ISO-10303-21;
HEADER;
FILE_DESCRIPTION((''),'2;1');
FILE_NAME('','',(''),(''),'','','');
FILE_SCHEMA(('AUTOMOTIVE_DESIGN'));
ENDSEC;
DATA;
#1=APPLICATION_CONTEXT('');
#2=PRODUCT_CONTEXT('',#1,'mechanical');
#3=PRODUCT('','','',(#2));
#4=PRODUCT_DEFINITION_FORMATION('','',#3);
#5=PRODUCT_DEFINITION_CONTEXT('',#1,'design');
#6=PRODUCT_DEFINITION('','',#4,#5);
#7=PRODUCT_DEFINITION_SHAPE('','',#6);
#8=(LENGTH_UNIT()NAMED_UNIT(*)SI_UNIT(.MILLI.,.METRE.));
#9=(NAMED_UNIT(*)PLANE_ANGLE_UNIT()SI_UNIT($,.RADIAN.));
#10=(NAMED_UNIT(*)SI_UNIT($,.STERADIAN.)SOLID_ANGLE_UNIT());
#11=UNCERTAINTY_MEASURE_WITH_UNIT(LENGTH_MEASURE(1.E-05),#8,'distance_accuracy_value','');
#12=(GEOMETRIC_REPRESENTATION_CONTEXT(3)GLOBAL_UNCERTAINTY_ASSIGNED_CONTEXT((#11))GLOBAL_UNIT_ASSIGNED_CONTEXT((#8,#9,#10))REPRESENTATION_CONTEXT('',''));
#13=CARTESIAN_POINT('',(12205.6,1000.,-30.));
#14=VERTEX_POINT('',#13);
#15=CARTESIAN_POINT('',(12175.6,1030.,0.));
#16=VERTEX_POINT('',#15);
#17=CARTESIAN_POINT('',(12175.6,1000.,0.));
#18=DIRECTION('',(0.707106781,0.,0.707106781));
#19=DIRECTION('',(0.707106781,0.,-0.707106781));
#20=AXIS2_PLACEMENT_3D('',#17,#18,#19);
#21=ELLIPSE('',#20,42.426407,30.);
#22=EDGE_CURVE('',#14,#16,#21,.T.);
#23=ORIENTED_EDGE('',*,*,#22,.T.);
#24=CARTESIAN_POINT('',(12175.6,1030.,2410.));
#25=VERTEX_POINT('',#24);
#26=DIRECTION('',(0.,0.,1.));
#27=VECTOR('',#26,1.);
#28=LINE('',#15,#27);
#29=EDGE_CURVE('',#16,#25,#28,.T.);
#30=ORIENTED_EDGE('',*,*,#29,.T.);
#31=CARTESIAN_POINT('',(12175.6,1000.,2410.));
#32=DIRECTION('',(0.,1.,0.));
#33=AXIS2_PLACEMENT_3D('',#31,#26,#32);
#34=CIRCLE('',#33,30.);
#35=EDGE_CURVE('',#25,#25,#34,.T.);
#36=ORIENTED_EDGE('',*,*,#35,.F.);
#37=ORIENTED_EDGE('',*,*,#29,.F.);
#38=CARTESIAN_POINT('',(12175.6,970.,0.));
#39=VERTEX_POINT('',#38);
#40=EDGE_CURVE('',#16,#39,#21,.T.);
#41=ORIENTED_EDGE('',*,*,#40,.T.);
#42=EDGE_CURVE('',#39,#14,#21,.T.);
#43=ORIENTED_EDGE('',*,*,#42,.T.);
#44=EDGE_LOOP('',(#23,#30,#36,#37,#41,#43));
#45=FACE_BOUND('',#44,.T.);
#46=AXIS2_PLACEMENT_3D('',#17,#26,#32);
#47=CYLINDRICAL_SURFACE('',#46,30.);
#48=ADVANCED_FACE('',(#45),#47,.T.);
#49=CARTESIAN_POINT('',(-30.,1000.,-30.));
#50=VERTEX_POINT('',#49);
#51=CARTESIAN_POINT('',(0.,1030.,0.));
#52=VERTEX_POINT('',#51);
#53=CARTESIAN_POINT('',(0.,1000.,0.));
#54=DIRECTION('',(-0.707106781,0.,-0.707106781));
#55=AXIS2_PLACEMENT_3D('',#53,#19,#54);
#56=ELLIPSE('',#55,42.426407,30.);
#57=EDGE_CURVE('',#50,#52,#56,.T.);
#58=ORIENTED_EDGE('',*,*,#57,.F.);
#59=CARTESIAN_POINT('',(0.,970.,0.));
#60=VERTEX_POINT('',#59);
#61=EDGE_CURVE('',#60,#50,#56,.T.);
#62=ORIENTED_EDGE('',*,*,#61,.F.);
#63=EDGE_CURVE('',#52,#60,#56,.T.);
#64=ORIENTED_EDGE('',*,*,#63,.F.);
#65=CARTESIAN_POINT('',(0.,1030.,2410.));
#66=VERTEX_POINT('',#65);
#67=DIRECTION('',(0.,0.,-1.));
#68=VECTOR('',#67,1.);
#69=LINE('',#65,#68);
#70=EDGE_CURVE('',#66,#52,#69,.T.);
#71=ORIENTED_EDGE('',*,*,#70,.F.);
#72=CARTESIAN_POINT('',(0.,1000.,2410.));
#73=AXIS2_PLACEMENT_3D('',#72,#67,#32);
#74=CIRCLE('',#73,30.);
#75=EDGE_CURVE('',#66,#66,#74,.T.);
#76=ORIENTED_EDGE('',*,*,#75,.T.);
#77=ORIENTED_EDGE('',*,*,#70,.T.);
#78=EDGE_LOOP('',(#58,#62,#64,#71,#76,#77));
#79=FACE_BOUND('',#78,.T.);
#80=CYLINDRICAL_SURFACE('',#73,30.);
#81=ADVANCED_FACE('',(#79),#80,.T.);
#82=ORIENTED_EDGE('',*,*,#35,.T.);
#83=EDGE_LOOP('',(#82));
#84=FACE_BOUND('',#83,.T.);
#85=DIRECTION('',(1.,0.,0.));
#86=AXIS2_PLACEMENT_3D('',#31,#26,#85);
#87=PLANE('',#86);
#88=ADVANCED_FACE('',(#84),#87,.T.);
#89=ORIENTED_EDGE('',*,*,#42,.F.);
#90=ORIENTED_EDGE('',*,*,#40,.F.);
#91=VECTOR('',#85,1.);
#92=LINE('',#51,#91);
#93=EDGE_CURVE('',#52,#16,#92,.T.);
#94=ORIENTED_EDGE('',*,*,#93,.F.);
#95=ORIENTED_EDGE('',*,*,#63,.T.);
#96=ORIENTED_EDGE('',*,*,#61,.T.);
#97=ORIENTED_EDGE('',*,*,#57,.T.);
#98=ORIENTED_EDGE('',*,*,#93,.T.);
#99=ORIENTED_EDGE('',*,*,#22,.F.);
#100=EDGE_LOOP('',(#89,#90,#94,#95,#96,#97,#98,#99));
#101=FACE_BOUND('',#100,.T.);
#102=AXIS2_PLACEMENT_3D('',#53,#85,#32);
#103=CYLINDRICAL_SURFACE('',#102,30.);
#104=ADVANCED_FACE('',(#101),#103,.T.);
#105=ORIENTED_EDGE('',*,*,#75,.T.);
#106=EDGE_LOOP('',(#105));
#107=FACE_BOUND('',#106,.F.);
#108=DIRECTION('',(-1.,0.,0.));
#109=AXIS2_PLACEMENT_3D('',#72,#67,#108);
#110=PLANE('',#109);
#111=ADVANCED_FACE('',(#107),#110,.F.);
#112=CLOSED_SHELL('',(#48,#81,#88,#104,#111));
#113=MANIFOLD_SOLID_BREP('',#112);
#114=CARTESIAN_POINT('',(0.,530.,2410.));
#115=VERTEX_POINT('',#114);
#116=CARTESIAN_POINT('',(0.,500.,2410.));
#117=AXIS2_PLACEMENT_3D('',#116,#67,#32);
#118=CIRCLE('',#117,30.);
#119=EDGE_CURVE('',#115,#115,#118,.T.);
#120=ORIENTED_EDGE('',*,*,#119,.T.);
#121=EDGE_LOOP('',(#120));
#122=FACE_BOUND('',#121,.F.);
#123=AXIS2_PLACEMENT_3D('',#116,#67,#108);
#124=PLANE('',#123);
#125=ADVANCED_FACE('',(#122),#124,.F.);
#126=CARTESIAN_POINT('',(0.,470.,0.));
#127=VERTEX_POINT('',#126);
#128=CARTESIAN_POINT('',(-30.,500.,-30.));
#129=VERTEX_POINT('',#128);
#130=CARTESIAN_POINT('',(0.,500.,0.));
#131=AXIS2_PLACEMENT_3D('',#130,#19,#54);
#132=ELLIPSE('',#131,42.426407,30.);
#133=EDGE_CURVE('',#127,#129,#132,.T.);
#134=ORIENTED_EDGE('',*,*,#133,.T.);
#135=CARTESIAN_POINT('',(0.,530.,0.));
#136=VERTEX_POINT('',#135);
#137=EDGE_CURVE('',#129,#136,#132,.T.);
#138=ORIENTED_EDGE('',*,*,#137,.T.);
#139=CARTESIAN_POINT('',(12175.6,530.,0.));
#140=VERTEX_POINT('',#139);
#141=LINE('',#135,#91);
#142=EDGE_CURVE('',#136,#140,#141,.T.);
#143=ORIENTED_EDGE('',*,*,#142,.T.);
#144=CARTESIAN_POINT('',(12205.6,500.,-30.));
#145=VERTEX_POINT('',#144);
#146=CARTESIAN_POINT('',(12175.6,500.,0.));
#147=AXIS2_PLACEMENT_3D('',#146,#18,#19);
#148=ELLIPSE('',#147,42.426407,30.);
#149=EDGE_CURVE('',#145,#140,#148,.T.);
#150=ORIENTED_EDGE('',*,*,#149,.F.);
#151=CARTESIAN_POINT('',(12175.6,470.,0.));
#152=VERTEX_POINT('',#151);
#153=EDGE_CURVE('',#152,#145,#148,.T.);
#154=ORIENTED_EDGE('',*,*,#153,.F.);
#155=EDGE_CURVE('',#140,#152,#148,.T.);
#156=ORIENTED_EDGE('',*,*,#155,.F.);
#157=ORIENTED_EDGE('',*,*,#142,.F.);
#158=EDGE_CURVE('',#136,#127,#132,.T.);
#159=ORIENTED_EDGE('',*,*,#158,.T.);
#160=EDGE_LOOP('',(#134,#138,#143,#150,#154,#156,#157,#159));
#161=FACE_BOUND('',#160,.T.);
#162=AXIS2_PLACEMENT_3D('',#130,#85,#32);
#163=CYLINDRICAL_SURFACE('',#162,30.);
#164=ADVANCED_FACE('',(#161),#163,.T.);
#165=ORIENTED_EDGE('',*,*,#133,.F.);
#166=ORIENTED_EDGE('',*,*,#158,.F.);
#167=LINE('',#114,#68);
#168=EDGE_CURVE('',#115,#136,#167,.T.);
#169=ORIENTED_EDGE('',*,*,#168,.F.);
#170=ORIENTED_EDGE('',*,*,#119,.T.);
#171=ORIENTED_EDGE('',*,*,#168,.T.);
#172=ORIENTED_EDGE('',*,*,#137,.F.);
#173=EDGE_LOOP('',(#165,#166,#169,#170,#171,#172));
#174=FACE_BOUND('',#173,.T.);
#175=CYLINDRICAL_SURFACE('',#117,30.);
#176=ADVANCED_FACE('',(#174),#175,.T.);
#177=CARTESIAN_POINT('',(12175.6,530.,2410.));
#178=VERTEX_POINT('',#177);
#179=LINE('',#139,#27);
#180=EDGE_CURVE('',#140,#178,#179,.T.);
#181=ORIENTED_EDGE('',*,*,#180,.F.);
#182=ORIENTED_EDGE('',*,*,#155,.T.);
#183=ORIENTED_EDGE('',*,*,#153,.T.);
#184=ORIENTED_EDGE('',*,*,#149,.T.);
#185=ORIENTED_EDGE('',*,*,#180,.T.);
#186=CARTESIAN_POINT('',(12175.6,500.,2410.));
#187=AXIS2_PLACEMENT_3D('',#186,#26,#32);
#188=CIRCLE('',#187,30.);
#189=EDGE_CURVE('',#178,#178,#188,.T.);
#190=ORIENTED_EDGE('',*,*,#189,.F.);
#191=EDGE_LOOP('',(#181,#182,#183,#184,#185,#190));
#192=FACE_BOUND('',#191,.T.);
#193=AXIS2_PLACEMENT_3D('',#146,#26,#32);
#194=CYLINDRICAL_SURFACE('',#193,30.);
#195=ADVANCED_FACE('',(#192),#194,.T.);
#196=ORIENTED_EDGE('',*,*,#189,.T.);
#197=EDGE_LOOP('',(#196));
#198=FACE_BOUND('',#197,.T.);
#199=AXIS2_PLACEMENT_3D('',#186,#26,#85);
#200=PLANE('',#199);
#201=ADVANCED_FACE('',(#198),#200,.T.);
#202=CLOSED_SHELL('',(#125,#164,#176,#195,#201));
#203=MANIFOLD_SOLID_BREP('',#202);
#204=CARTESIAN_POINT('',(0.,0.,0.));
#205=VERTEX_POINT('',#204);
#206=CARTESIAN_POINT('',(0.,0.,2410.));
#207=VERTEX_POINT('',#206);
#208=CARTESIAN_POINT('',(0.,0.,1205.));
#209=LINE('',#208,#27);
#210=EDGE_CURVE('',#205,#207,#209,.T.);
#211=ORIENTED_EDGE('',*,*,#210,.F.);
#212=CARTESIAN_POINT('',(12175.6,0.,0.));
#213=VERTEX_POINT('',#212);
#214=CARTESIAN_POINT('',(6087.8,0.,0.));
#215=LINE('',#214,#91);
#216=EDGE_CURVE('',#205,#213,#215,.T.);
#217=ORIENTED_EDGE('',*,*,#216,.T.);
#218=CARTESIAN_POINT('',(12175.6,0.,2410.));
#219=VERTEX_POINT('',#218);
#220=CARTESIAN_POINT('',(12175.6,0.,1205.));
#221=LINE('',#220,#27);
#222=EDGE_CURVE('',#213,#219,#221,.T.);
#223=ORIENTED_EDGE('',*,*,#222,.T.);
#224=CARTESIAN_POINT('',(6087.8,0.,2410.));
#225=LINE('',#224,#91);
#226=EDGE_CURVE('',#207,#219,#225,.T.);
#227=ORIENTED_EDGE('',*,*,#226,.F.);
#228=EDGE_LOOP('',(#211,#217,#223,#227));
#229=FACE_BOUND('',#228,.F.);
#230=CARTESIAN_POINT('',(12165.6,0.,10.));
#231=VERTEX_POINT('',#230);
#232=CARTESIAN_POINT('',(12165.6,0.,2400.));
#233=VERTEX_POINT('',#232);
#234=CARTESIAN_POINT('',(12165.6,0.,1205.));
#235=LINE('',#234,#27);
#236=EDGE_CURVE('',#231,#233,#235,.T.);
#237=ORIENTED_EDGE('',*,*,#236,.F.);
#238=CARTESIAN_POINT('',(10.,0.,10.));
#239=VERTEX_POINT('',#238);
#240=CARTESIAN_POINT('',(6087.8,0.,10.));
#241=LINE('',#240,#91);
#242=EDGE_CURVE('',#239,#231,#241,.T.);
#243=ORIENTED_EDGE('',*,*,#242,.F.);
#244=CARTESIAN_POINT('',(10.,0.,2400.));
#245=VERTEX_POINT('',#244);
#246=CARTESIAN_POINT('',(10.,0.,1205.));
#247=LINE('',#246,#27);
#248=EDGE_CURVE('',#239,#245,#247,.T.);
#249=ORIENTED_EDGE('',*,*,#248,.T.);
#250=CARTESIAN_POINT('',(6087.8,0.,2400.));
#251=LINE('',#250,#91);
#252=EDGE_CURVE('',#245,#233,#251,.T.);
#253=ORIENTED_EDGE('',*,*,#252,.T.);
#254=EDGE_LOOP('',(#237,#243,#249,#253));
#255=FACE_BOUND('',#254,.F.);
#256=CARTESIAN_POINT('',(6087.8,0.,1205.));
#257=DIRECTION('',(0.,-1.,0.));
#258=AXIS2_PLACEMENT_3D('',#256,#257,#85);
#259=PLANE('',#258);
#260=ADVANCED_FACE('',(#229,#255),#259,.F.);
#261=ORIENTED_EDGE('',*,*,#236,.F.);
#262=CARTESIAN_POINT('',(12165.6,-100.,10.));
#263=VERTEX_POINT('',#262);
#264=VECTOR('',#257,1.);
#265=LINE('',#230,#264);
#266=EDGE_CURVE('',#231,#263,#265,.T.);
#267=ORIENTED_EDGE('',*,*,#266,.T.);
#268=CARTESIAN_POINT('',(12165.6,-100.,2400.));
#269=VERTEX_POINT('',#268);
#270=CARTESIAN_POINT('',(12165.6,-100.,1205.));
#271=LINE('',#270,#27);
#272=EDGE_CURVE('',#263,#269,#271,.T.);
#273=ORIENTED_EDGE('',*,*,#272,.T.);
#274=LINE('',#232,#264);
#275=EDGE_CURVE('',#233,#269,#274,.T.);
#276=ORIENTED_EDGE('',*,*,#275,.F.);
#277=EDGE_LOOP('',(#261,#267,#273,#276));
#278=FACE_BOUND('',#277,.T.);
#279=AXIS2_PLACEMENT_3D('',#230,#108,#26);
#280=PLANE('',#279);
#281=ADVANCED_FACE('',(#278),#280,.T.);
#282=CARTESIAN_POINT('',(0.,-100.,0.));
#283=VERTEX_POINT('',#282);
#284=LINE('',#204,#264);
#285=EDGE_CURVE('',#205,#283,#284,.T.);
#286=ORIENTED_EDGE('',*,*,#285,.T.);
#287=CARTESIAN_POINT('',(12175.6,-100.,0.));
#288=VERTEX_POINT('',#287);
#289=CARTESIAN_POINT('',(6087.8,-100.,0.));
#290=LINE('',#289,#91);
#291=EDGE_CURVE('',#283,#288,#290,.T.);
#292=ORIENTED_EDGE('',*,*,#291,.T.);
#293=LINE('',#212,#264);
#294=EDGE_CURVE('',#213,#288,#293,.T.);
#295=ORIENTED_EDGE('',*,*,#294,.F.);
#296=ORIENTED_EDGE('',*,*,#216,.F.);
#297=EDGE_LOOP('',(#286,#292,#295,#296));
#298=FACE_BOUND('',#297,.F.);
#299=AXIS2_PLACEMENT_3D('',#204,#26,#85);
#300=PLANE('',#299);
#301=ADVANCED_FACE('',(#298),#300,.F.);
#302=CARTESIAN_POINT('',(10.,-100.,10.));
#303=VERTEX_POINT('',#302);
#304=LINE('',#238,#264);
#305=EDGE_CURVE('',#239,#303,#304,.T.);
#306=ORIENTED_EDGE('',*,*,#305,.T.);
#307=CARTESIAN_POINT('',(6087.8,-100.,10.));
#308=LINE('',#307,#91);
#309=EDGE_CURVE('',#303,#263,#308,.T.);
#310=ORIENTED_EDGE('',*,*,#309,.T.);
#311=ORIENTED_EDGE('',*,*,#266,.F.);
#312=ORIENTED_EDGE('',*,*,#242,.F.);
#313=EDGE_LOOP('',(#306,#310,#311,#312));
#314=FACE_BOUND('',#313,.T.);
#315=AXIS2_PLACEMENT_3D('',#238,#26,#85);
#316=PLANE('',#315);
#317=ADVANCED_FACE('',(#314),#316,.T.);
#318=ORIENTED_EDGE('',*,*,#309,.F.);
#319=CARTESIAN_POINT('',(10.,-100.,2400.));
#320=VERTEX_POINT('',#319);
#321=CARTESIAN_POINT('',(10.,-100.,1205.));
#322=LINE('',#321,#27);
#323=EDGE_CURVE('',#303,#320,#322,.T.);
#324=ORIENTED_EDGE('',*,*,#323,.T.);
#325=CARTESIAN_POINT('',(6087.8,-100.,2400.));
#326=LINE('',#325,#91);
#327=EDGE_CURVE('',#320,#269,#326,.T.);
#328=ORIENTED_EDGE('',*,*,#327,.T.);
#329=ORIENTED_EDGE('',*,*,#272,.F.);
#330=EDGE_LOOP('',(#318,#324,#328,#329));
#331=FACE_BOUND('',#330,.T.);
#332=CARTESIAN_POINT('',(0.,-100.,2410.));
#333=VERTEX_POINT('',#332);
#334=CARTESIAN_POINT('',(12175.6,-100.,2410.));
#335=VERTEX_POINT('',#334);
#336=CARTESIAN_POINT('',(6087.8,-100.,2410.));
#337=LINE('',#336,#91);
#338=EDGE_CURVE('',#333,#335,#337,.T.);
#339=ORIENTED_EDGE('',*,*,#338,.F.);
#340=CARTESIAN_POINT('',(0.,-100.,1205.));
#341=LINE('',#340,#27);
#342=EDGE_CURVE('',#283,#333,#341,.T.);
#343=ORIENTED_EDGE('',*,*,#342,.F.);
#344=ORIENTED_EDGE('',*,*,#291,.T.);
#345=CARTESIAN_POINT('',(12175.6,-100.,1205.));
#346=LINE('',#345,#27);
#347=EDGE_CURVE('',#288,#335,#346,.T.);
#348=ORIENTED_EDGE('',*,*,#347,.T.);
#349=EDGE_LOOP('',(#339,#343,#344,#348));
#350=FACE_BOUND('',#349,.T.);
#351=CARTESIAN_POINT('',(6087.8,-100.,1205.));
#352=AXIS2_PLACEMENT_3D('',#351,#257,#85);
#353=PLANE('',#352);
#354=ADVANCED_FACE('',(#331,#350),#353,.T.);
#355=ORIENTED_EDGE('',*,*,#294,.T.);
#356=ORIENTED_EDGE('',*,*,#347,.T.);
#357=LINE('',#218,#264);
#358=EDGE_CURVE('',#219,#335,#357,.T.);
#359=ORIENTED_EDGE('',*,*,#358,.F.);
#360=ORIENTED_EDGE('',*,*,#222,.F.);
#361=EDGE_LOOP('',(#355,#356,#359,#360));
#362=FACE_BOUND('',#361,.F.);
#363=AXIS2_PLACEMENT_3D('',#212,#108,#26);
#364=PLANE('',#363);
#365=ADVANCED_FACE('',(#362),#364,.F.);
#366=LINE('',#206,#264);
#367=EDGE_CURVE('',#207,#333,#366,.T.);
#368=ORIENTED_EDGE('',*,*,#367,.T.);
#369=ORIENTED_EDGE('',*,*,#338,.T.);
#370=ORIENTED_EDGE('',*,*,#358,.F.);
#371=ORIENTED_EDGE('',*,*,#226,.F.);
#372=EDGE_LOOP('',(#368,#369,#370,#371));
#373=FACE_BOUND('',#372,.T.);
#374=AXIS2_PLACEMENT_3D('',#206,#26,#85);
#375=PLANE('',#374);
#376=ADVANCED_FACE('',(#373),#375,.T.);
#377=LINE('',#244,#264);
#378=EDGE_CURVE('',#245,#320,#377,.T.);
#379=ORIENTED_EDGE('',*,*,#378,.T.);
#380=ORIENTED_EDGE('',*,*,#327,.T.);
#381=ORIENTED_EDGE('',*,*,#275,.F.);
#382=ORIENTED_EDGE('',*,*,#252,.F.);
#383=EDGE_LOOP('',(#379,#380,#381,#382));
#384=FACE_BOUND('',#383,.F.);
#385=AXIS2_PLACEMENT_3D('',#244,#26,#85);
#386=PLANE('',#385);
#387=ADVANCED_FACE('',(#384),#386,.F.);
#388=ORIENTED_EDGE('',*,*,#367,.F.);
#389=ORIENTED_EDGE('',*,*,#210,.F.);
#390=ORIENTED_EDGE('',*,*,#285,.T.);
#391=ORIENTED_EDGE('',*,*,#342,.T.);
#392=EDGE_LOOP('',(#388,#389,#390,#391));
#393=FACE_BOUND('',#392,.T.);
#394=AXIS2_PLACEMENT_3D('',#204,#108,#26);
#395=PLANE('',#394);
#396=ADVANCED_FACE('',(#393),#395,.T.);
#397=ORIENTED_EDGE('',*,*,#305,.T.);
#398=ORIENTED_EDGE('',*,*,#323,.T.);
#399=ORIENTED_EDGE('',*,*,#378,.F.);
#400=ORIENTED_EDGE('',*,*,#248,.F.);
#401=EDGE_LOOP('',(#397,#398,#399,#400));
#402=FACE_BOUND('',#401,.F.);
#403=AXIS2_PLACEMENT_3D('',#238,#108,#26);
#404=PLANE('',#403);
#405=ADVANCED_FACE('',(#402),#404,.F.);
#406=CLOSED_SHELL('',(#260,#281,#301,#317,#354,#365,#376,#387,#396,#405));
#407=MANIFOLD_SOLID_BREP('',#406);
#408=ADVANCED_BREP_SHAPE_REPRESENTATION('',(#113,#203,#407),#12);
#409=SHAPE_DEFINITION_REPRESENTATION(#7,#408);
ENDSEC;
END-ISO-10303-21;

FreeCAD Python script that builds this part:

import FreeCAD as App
import Part
import Sketcher
from FreeCAD import Vector
Q = App.Units.Quantity


def add_polygon(sketch, points):
    """Adds a closed chain of lines whose ends are joined by coincident constraints."""
    first, n = sketch.GeometryCount, len(points)
    for a, b in zip(points, points[1:] + points[:1]):
        sketch.addGeometry(Part.LineSegment(App.Vector(*a, 0), App.Vector(*b, 0)), False)
    for i in range(n):
        sketch.addConstraint(Sketcher.Constraint("Coincident", first + i, 2, first + (i + 1) % n, 1))

doc = App.newDocument("Part")
body = doc.addObject("PartDesign::Body", "Body")

# Sketch on XZ plane
sketch1 = body.newObject("Sketcher::SketchObject", "Sketch")
sketch1.AttachmentSupport = (doc.getObject("XZ_Plane"), [""])
sketch1.MapMode = "FlatFace"
add_polygon(sketch1, [(0, 2410), (0, 0), (12176, 0), (12176, 2410)])  # lines 0-3
add_polygon(sketch1, [(12166, 10), (10, 10), (10, 2400), (12166, 2400)])  # lines 4-7
sketch1.addConstraint(Sketcher.Constraint("Vertical", 0))
sketch1.addConstraint(Sketcher.Constraint("Horizontal", 1))
sketch1.addConstraint(Sketcher.Constraint("Vertical", 2))
sketch1.addConstraint(Sketcher.Constraint("Horizontal", 3))
sketch1.addConstraint(Sketcher.Constraint("Horizontal", 4))
sketch1.addConstraint(Sketcher.Constraint("Vertical", 5))
sketch1.addConstraint(Sketcher.Constraint("Horizontal", 6))
sketch1.addConstraint(Sketcher.Constraint("Vertical", 7))
sketch1.addConstraint(Sketcher.Constraint("Coincident", 0, 2, -1, 1))
sketch1.addConstraint(Sketcher.Constraint("DistanceY", 0, 2, 0, 1, Q("2410 mm")))
sketch1.addConstraint(Sketcher.Constraint("DistanceY", 5, 1, 5, 2, Q("2390 mm")))
sketch1.addConstraint(Sketcher.Constraint("DistanceX", 1, 1, 1, 2, Q("12175.6 mm")))
sketch1.addConstraint(Sketcher.Constraint("DistanceX", 4, 2, 4, 1, Q("12155.6 mm")))
sketch1.addConstraint(Sketcher.Constraint("DistanceX", -1, 1, 4, 2, Q("10 mm")))
sketch1.addConstraint(Sketcher.Constraint("DistanceY", -1, 1, 4, 2, Q("10 mm")))
pad1 = body.newObject("PartDesign::Pad", "Pad")
pad1.Profile = sketch1
pad1.Length = 100
body2 = doc.addObject("PartDesign::Body", "Body001")

# Sketch on YZ plane
sketch2 = body2.newObject("Sketcher::SketchObject", "Sketch001")
sketch2.AttachmentSupport = (doc.getObject("YZ_Plane001"), [""])
sketch2.MapMode = "FlatFace"
sketch2.addGeometry(Part.Circle(Vector(500, 0, 0), Vector(0, 0, 1), 30), False)
sketch2.addConstraint(Sketcher.Constraint("PointOnObject", 0, 3, -1))
sketch2.addConstraint(Sketcher.Constraint("Diameter", 0, Q("60 mm")))
sketch2.addConstraint(Sketcher.Constraint("DistanceX", -1, 1, 0, 3, Q("500 mm")))

# Sketch on XZ plane
sketch3 = body2.newObject("Sketcher::SketchObject", "Sketch002")
sketch3.AttachmentSupport = (doc.getObject("XZ_Plane001"), [""])
sketch3.MapMode = "FlatFace"
sketch3.AttachmentOffset = App.Placement(Vector(0, 0, -500), App.Rotation())
sketch3.addGeometry(Part.LineSegment(Vector(0, 2410, 0), Vector(0, 0, 0)), False)
sketch3.addGeometry(Part.LineSegment(Vector(0, 0, 0), Vector(12176, 0, 0)), False)
sketch3.addGeometry(Part.LineSegment(Vector(12176, 0, 0), Vector(12176, 2410, 0)), False)
sketch3.addConstraint(Sketcher.Constraint("Coincident", 0, 2, 1, 1))
sketch3.addConstraint(Sketcher.Constraint("Coincident", 1, 2, 2, 1))
sketch3.addConstraint(Sketcher.Constraint("Vertical", 0))
sketch3.addConstraint(Sketcher.Constraint("Horizontal", 1))
sketch3.addConstraint(Sketcher.Constraint("Vertical", 2))
sketch3.addConstraint(Sketcher.Constraint("Coincident", 0, 2, -1, 1))
sketch3.addConstraint(Sketcher.Constraint("Horizontal", 0, 1, 2, 2))
sketch3.addConstraint(Sketcher.Constraint("DistanceY", 0, 2, 0, 1, Q("2410 mm")))
sketch3.addConstraint(Sketcher.Constraint("DistanceX", 1, 1, 1, 2, Q("12175.6 mm")))
doc.recompute()

additivepipe = body2.newObject("PartDesign::AdditivePipe", "AdditivePipe")
additivepipe.Profile = sketch2
additivepipe.Spine = (sketch3, ["Edge1", "Edge2", "Edge3"])
additivepipe.Transition = "Right corner"
body3 = doc.addObject("PartDesign::Body", "Body002")

# Sketch on YZ plane
sketch4 = body3.newObject("Sketcher::SketchObject", "Sketch003")
sketch4.AttachmentSupport = (doc.getObject("YZ_Plane002"), [""])
sketch4.MapMode = "FlatFace"
sketch4.addGeometry(Part.Circle(Vector(1000, 0, 0), Vector(0, 0, 1), 30), False)
sketch4.addConstraint(Sketcher.Constraint("PointOnObject", 0, 3, -1))
sketch4.addConstraint(Sketcher.Constraint("Diameter", 0, Q("60 mm")))
sketch4.addConstraint(Sketcher.Constraint("DistanceX", -1, 1, 0, 3, Q("1000 mm")))

# Sketch on XZ plane
sketch5 = body3.newObject("Sketcher::SketchObject", "Sketch004")
sketch5.AttachmentSupport = (doc.getObject("XZ_Plane002"), [""])
sketch5.MapMode = "FlatFace"
sketch5.AttachmentOffset = App.Placement(Vector(0, 0, -1000), App.Rotation())
sketch5.addGeometry(Part.LineSegment(Vector(0, 2410, 0), Vector(0, 0, 0)), False)
sketch5.addGeometry(Part.LineSegment(Vector(0, 0, 0), Vector(12176, 0, 0)), False)
sketch5.addGeometry(Part.LineSegment(Vector(12176, 0, 0), Vector(12176, 2410, 0)), False)
sketch5.addConstraint(Sketcher.Constraint("Coincident", 0, 2, 1, 1))
sketch5.addConstraint(Sketcher.Constraint("Coincident", 1, 2, 2, 1))
sketch5.addConstraint(Sketcher.Constraint("Vertical", 0))
sketch5.addConstraint(Sketcher.Constraint("Horizontal", 1))
sketch5.addConstraint(Sketcher.Constraint("Vertical", 2))
sketch5.addConstraint(Sketcher.Constraint("Coincident", 0, 2, -1, 1))
sketch5.addConstraint(Sketcher.Constraint("Horizontal", 0, 1, 2, 2))
sketch5.addConstraint(Sketcher.Constraint("DistanceY", 0, 2, 0, 1, Q("2410 mm")))
sketch5.addConstraint(Sketcher.Constraint("DistanceX", 1, 1, 1, 2, Q("12175.6 mm")))
doc.recompute()

additivepipe2 = body3.newObject("PartDesign::AdditivePipe", "AdditivePipe001")
additivepipe2.Profile = sketch4
additivepipe2.Spine = (sketch5, ["Edge1", "Edge2", "Edge3"])
additivepipe2.Transition = "Right corner"

doc.recompute()
